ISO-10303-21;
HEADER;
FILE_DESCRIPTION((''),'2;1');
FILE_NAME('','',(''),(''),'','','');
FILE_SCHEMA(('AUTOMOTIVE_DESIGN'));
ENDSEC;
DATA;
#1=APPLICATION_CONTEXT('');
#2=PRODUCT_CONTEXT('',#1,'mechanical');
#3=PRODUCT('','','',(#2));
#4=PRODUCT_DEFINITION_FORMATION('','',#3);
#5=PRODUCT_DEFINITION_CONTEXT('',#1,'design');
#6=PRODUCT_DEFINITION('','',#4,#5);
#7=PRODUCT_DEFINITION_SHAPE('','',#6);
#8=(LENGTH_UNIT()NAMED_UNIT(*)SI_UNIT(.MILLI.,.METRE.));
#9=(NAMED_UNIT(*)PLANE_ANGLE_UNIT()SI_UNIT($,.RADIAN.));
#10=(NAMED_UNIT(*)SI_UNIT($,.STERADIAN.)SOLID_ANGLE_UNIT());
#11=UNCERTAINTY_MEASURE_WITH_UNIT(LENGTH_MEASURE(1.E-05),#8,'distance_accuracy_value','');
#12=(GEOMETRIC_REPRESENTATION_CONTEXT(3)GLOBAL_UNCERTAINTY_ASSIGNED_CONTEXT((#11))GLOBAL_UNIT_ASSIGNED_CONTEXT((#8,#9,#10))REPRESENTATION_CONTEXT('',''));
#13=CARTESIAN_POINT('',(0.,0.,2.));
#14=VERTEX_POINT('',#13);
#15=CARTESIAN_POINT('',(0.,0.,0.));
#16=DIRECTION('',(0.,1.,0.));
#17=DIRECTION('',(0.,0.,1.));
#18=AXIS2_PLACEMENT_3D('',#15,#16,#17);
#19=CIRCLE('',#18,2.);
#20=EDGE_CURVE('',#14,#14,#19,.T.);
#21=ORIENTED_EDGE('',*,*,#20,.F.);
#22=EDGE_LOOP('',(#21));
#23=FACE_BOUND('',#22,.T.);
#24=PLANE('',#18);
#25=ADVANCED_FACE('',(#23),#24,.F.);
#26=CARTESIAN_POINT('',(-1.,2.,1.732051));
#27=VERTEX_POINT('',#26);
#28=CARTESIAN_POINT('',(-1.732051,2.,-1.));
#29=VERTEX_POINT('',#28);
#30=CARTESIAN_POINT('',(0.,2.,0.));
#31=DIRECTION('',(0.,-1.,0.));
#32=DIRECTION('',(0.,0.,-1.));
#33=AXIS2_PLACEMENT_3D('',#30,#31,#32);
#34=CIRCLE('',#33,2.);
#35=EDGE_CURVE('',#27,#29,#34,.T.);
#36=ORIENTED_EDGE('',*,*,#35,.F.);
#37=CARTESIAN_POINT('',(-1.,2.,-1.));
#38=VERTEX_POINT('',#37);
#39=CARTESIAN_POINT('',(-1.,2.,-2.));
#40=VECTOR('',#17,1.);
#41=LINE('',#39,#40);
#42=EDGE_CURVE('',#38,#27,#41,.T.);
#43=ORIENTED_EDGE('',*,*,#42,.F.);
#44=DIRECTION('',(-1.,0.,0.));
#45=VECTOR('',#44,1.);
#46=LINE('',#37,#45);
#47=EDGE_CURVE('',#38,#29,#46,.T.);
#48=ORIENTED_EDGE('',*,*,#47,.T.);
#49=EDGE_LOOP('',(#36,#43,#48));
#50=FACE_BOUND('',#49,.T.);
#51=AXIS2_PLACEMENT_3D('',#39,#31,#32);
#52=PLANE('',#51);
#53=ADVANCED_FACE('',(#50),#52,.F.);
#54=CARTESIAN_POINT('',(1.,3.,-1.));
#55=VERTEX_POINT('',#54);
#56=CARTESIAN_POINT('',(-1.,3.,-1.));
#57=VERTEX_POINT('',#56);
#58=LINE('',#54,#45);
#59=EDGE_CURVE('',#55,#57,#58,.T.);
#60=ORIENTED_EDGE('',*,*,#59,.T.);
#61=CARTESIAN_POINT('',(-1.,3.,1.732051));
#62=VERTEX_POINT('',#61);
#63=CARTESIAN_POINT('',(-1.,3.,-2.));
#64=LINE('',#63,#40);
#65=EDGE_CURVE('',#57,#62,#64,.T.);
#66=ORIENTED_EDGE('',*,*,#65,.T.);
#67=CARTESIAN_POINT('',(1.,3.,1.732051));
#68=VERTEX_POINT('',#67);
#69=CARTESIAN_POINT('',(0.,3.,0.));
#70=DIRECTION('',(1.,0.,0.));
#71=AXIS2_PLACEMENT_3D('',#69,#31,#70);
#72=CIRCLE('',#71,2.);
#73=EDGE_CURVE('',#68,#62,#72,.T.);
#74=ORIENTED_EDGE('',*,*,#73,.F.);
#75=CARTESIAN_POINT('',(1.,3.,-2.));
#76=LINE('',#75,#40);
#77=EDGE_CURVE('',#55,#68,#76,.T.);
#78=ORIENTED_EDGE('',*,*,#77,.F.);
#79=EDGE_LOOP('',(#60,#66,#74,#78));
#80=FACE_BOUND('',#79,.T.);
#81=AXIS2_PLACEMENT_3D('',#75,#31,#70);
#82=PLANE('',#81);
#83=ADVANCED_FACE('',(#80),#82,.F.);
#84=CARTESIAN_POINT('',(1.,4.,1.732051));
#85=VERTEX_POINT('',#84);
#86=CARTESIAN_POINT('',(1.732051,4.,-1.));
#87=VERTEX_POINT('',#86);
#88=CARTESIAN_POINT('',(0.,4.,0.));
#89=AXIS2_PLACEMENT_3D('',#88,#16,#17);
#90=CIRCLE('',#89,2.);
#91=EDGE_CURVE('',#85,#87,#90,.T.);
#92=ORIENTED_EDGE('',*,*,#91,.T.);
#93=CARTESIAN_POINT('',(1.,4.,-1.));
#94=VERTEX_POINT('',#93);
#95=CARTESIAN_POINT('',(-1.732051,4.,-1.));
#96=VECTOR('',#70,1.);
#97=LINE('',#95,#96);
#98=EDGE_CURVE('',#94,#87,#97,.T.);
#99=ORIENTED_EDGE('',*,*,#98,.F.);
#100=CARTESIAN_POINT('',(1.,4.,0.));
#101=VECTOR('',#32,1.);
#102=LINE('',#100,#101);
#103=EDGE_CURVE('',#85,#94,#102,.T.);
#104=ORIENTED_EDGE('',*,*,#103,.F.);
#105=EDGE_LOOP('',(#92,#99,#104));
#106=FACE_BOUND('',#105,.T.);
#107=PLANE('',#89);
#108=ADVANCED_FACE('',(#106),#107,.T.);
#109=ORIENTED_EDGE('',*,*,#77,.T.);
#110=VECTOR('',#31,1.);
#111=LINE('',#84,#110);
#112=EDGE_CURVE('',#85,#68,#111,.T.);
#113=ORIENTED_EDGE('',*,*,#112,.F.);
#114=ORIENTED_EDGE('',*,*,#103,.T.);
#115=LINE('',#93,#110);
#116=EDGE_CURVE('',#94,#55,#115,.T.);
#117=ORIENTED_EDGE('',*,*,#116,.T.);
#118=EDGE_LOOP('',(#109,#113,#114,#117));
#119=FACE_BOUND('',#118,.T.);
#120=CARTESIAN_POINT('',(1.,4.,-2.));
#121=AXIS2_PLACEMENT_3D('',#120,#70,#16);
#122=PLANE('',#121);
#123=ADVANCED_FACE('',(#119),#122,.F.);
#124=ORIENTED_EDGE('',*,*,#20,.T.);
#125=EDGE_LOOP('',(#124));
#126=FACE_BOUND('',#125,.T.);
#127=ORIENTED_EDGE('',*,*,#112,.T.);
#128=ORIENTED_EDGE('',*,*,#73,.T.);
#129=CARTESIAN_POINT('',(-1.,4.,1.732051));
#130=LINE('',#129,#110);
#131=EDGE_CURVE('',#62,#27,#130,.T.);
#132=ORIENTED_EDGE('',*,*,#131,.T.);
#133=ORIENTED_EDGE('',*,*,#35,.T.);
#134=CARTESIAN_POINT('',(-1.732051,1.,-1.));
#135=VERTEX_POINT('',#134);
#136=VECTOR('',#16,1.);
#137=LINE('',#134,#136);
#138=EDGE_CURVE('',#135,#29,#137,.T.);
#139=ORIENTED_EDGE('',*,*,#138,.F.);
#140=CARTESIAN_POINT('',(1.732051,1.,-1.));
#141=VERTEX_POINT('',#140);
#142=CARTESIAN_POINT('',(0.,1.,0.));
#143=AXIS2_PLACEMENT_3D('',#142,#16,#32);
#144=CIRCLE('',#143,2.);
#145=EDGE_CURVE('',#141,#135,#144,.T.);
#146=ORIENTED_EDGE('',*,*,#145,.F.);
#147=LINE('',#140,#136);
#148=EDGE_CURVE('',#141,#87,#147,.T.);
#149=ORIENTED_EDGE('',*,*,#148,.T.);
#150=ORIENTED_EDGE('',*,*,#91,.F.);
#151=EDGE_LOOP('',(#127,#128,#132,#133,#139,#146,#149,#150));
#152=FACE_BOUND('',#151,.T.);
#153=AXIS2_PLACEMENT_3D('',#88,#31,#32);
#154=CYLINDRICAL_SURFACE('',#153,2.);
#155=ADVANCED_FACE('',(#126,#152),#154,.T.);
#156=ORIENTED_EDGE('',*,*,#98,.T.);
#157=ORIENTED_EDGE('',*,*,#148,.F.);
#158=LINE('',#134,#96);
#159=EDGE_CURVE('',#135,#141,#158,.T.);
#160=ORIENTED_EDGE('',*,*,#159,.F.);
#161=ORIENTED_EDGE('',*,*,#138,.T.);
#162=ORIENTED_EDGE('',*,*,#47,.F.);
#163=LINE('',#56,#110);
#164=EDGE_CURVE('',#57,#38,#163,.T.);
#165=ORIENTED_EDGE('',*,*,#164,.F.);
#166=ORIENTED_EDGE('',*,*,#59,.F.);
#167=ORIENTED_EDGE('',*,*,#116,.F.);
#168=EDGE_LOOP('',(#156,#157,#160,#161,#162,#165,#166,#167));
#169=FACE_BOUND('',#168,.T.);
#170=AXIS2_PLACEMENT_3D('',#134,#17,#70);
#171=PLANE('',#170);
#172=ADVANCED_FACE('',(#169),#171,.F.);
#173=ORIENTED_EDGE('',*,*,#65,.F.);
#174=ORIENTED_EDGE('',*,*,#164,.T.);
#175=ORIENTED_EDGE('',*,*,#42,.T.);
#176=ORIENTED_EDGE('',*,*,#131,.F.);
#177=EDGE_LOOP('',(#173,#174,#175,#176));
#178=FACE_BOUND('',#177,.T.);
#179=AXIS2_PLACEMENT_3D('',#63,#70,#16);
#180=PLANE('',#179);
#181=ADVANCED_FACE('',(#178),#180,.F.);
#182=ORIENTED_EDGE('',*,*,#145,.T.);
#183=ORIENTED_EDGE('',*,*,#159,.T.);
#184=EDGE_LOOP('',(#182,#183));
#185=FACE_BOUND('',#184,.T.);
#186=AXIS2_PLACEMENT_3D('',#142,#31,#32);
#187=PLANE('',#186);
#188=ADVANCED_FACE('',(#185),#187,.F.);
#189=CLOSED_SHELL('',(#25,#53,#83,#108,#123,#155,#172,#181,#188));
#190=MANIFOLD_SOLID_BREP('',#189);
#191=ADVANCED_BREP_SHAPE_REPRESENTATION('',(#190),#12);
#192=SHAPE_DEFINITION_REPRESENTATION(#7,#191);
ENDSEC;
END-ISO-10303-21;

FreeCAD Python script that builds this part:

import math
import FreeCAD as App
import Part
import Sketcher

V = App.Vector

doc = App.newDocument("Part")
params = doc.addObject("Spreadsheet::Sheet", "Params")
for row, (alias, value) in enumerate([
    ("sketch1_diameter", "4 mm"),
    ("pad1_length", "4 mm"),
    ("sketch2_width", "3 mm"),
    ("pocket1_length", "4 mm"),
    ("sketch3_radius", "2 mm"),
    ("pocket2_length", "3 mm"),
], start=1):
    params.set(f"A{row}", alias)
    params.set(f"B{row}", "=" + value)
    params.setAlias(f"B{row}", alias)

body = doc.addObject("PartDesign::Body", "Body")

# Sketch on XZ plane
sketch1 = doc.addObject("Sketcher::SketchObject", "Sketch")
body.addObject(sketch1)
sketch1.AttachmentSupport = (doc.XZ_Plane, [""])
sketch1.MapMode = "FlatFace"
sketch1.addGeometry(Part.Circle(V(0, 0, 0), V(0, 0, 1), 2), False)
sketch1.addConstraint(Sketcher.Constraint("Coincident", 0, 3, -1, 1))
sketch1.addConstraint(Sketcher.Constraint("Diameter", 0, 4.0))
sketch1.setExpression("Constraints[1]", "Params.sketch1_diameter")
pad1 = doc.addObject("PartDesign::Pad", "Pad")
body.addObject(pad1)
pad1.Profile = sketch1
pad1.setExpression("Length", "Params.pad1_length")
pad1.Reversed = True

# Sketch on XY plane
sketch2 = doc.addObject("Sketcher::SketchObject", "Sketch001")
body.addObject(sketch2)
sketch2.AttachmentSupport = (doc.XY_Plane, [""])
sketch2.MapMode = "FlatFace"
sketch2.addGeometry(Part.LineSegment(V(1, 3, 0), V(1, 4, 0)), False)
sketch2.addGeometry(Part.LineSegment(V(1, 4, 0), V(-2, 4, 0)), False)
sketch2.addGeometry(Part.LineSegment(V(-2, 4, 0), V(-2, 2, 0)), False)
sketch2.addGeometry(Part.LineSegment(V(-2, 2, 0), V(-1, 2, 0)), False)
sketch2.addGeometry(Part.LineSegment(V(-1, 2, 0), V(-1, 3, 0)), False)
sketch2.addGeometry(Part.LineSegment(V(-1, 3, 0), V(1, 3, 0)), False)
sketch2.addConstraint(Sketcher.Constraint("Coincident", 0, 2, 1, 1))
sketch2.addConstraint(Sketcher.Constraint("Coincident", 1, 2, 2, 1))
sketch2.addConstraint(Sketcher.Constraint("Coincident", 2, 2, 3, 1))
sketch2.addConstraint(Sketcher.Constraint("Coincident", 3, 2, 4, 1))
sketch2.addConstraint(Sketcher.Constraint("Coincident", 4, 2, 5, 1))
sketch2.addConstraint(Sketcher.Constraint("Coincident", 5, 2, 0, 1))
sketch2.addConstraint(Sketcher.Constraint("Vertical", 0))
sketch2.addConstraint(Sketcher.Constraint("Horizontal", 1))
sketch2.addConstraint(Sketcher.Constraint("Vertical", 2))
sketch2.addConstraint(Sketcher.Constraint("Horizontal", 3))
sketch2.addConstraint(Sketcher.Constraint("Vertical", 4))
sketch2.addConstraint(Sketcher.Constraint("Horizontal", 5))
sketch2.addConstraint(Sketcher.Constraint("Equal", 3, 0))
sketch2.addConstraint(Sketcher.Constraint("Equal", 5, 2))
sketch2.addConstraint(Sketcher.Constraint("Equal", 0, 4))
sketch2.addConstraint(Sketcher.Constraint("DistanceX", 1, 2, 1, 1, 3.0))
sketch2.addConstraint(Sketcher.Constraint("DistanceX", -1, 1, 0, 2, 1.0))
sketch2.addConstraint(Sketcher.Constraint("DistanceY", -1, 1, 0, 2, 4.0))
sketch2.setExpression("Constraints[15]", "Params.sketch2_width")
pocket1 = doc.addObject("PartDesign::Pocket", "Pocket")
body.addObject(pocket1)
pocket1.Profile = sketch2
pocket1.setExpression("Length", "Params.pocket1_length")
pocket1.Midplane = True

# Sketch on XZ plane
sketch3 = doc.addObject("Sketcher::SketchObject", "Sketch002")
body.addObject(sketch3)
sketch3.AttachmentSupport = (doc.XZ_Plane, [""])
sketch3.MapMode = "FlatFace"
sketch3.AttachmentOffset = App.Placement(V(0, 0, -4), App.Rotation())
sketch3.addGeometry(Part.LineSegment(V(-1.7, -1, 0), V(1.7, -1, 0)), False)
sketch3.addGeometry(Part.ArcOfCircle(Part.Circle(V(0, 0, 0), V(0, 0, 1), 2), math.radians(-150), math.radians(-30)), False)
sketch3.addConstraint(Sketcher.Constraint("Coincident", 0, 1, 1, 1))
sketch3.addConstraint(Sketcher.Constraint("Coincident", 1, 2, 0, 2))
sketch3.addConstraint(Sketcher.Constraint("Horizontal", 0))
sketch3.addConstraint(Sketcher.Constraint("Coincident", 1, 3, -1, 1))
sketch3.addConstraint(Sketcher.Constraint("Radius", 1, 2.0))
sketch3.addConstraint(Sketcher.Constraint("DistanceY", 0, 1, -1, 1, 1.0))
sketch3.setExpression("Constraints[4]", "Params.sketch3_radius")
pocket2 = doc.addObject("PartDesign::Pocket", "Pocket001")
body.addObject(pocket2)
pocket2.Profile = sketch3
pocket2.setExpression("Length", "Params.pocket2_length")
pocket2.Reversed = True

doc.recompute()
